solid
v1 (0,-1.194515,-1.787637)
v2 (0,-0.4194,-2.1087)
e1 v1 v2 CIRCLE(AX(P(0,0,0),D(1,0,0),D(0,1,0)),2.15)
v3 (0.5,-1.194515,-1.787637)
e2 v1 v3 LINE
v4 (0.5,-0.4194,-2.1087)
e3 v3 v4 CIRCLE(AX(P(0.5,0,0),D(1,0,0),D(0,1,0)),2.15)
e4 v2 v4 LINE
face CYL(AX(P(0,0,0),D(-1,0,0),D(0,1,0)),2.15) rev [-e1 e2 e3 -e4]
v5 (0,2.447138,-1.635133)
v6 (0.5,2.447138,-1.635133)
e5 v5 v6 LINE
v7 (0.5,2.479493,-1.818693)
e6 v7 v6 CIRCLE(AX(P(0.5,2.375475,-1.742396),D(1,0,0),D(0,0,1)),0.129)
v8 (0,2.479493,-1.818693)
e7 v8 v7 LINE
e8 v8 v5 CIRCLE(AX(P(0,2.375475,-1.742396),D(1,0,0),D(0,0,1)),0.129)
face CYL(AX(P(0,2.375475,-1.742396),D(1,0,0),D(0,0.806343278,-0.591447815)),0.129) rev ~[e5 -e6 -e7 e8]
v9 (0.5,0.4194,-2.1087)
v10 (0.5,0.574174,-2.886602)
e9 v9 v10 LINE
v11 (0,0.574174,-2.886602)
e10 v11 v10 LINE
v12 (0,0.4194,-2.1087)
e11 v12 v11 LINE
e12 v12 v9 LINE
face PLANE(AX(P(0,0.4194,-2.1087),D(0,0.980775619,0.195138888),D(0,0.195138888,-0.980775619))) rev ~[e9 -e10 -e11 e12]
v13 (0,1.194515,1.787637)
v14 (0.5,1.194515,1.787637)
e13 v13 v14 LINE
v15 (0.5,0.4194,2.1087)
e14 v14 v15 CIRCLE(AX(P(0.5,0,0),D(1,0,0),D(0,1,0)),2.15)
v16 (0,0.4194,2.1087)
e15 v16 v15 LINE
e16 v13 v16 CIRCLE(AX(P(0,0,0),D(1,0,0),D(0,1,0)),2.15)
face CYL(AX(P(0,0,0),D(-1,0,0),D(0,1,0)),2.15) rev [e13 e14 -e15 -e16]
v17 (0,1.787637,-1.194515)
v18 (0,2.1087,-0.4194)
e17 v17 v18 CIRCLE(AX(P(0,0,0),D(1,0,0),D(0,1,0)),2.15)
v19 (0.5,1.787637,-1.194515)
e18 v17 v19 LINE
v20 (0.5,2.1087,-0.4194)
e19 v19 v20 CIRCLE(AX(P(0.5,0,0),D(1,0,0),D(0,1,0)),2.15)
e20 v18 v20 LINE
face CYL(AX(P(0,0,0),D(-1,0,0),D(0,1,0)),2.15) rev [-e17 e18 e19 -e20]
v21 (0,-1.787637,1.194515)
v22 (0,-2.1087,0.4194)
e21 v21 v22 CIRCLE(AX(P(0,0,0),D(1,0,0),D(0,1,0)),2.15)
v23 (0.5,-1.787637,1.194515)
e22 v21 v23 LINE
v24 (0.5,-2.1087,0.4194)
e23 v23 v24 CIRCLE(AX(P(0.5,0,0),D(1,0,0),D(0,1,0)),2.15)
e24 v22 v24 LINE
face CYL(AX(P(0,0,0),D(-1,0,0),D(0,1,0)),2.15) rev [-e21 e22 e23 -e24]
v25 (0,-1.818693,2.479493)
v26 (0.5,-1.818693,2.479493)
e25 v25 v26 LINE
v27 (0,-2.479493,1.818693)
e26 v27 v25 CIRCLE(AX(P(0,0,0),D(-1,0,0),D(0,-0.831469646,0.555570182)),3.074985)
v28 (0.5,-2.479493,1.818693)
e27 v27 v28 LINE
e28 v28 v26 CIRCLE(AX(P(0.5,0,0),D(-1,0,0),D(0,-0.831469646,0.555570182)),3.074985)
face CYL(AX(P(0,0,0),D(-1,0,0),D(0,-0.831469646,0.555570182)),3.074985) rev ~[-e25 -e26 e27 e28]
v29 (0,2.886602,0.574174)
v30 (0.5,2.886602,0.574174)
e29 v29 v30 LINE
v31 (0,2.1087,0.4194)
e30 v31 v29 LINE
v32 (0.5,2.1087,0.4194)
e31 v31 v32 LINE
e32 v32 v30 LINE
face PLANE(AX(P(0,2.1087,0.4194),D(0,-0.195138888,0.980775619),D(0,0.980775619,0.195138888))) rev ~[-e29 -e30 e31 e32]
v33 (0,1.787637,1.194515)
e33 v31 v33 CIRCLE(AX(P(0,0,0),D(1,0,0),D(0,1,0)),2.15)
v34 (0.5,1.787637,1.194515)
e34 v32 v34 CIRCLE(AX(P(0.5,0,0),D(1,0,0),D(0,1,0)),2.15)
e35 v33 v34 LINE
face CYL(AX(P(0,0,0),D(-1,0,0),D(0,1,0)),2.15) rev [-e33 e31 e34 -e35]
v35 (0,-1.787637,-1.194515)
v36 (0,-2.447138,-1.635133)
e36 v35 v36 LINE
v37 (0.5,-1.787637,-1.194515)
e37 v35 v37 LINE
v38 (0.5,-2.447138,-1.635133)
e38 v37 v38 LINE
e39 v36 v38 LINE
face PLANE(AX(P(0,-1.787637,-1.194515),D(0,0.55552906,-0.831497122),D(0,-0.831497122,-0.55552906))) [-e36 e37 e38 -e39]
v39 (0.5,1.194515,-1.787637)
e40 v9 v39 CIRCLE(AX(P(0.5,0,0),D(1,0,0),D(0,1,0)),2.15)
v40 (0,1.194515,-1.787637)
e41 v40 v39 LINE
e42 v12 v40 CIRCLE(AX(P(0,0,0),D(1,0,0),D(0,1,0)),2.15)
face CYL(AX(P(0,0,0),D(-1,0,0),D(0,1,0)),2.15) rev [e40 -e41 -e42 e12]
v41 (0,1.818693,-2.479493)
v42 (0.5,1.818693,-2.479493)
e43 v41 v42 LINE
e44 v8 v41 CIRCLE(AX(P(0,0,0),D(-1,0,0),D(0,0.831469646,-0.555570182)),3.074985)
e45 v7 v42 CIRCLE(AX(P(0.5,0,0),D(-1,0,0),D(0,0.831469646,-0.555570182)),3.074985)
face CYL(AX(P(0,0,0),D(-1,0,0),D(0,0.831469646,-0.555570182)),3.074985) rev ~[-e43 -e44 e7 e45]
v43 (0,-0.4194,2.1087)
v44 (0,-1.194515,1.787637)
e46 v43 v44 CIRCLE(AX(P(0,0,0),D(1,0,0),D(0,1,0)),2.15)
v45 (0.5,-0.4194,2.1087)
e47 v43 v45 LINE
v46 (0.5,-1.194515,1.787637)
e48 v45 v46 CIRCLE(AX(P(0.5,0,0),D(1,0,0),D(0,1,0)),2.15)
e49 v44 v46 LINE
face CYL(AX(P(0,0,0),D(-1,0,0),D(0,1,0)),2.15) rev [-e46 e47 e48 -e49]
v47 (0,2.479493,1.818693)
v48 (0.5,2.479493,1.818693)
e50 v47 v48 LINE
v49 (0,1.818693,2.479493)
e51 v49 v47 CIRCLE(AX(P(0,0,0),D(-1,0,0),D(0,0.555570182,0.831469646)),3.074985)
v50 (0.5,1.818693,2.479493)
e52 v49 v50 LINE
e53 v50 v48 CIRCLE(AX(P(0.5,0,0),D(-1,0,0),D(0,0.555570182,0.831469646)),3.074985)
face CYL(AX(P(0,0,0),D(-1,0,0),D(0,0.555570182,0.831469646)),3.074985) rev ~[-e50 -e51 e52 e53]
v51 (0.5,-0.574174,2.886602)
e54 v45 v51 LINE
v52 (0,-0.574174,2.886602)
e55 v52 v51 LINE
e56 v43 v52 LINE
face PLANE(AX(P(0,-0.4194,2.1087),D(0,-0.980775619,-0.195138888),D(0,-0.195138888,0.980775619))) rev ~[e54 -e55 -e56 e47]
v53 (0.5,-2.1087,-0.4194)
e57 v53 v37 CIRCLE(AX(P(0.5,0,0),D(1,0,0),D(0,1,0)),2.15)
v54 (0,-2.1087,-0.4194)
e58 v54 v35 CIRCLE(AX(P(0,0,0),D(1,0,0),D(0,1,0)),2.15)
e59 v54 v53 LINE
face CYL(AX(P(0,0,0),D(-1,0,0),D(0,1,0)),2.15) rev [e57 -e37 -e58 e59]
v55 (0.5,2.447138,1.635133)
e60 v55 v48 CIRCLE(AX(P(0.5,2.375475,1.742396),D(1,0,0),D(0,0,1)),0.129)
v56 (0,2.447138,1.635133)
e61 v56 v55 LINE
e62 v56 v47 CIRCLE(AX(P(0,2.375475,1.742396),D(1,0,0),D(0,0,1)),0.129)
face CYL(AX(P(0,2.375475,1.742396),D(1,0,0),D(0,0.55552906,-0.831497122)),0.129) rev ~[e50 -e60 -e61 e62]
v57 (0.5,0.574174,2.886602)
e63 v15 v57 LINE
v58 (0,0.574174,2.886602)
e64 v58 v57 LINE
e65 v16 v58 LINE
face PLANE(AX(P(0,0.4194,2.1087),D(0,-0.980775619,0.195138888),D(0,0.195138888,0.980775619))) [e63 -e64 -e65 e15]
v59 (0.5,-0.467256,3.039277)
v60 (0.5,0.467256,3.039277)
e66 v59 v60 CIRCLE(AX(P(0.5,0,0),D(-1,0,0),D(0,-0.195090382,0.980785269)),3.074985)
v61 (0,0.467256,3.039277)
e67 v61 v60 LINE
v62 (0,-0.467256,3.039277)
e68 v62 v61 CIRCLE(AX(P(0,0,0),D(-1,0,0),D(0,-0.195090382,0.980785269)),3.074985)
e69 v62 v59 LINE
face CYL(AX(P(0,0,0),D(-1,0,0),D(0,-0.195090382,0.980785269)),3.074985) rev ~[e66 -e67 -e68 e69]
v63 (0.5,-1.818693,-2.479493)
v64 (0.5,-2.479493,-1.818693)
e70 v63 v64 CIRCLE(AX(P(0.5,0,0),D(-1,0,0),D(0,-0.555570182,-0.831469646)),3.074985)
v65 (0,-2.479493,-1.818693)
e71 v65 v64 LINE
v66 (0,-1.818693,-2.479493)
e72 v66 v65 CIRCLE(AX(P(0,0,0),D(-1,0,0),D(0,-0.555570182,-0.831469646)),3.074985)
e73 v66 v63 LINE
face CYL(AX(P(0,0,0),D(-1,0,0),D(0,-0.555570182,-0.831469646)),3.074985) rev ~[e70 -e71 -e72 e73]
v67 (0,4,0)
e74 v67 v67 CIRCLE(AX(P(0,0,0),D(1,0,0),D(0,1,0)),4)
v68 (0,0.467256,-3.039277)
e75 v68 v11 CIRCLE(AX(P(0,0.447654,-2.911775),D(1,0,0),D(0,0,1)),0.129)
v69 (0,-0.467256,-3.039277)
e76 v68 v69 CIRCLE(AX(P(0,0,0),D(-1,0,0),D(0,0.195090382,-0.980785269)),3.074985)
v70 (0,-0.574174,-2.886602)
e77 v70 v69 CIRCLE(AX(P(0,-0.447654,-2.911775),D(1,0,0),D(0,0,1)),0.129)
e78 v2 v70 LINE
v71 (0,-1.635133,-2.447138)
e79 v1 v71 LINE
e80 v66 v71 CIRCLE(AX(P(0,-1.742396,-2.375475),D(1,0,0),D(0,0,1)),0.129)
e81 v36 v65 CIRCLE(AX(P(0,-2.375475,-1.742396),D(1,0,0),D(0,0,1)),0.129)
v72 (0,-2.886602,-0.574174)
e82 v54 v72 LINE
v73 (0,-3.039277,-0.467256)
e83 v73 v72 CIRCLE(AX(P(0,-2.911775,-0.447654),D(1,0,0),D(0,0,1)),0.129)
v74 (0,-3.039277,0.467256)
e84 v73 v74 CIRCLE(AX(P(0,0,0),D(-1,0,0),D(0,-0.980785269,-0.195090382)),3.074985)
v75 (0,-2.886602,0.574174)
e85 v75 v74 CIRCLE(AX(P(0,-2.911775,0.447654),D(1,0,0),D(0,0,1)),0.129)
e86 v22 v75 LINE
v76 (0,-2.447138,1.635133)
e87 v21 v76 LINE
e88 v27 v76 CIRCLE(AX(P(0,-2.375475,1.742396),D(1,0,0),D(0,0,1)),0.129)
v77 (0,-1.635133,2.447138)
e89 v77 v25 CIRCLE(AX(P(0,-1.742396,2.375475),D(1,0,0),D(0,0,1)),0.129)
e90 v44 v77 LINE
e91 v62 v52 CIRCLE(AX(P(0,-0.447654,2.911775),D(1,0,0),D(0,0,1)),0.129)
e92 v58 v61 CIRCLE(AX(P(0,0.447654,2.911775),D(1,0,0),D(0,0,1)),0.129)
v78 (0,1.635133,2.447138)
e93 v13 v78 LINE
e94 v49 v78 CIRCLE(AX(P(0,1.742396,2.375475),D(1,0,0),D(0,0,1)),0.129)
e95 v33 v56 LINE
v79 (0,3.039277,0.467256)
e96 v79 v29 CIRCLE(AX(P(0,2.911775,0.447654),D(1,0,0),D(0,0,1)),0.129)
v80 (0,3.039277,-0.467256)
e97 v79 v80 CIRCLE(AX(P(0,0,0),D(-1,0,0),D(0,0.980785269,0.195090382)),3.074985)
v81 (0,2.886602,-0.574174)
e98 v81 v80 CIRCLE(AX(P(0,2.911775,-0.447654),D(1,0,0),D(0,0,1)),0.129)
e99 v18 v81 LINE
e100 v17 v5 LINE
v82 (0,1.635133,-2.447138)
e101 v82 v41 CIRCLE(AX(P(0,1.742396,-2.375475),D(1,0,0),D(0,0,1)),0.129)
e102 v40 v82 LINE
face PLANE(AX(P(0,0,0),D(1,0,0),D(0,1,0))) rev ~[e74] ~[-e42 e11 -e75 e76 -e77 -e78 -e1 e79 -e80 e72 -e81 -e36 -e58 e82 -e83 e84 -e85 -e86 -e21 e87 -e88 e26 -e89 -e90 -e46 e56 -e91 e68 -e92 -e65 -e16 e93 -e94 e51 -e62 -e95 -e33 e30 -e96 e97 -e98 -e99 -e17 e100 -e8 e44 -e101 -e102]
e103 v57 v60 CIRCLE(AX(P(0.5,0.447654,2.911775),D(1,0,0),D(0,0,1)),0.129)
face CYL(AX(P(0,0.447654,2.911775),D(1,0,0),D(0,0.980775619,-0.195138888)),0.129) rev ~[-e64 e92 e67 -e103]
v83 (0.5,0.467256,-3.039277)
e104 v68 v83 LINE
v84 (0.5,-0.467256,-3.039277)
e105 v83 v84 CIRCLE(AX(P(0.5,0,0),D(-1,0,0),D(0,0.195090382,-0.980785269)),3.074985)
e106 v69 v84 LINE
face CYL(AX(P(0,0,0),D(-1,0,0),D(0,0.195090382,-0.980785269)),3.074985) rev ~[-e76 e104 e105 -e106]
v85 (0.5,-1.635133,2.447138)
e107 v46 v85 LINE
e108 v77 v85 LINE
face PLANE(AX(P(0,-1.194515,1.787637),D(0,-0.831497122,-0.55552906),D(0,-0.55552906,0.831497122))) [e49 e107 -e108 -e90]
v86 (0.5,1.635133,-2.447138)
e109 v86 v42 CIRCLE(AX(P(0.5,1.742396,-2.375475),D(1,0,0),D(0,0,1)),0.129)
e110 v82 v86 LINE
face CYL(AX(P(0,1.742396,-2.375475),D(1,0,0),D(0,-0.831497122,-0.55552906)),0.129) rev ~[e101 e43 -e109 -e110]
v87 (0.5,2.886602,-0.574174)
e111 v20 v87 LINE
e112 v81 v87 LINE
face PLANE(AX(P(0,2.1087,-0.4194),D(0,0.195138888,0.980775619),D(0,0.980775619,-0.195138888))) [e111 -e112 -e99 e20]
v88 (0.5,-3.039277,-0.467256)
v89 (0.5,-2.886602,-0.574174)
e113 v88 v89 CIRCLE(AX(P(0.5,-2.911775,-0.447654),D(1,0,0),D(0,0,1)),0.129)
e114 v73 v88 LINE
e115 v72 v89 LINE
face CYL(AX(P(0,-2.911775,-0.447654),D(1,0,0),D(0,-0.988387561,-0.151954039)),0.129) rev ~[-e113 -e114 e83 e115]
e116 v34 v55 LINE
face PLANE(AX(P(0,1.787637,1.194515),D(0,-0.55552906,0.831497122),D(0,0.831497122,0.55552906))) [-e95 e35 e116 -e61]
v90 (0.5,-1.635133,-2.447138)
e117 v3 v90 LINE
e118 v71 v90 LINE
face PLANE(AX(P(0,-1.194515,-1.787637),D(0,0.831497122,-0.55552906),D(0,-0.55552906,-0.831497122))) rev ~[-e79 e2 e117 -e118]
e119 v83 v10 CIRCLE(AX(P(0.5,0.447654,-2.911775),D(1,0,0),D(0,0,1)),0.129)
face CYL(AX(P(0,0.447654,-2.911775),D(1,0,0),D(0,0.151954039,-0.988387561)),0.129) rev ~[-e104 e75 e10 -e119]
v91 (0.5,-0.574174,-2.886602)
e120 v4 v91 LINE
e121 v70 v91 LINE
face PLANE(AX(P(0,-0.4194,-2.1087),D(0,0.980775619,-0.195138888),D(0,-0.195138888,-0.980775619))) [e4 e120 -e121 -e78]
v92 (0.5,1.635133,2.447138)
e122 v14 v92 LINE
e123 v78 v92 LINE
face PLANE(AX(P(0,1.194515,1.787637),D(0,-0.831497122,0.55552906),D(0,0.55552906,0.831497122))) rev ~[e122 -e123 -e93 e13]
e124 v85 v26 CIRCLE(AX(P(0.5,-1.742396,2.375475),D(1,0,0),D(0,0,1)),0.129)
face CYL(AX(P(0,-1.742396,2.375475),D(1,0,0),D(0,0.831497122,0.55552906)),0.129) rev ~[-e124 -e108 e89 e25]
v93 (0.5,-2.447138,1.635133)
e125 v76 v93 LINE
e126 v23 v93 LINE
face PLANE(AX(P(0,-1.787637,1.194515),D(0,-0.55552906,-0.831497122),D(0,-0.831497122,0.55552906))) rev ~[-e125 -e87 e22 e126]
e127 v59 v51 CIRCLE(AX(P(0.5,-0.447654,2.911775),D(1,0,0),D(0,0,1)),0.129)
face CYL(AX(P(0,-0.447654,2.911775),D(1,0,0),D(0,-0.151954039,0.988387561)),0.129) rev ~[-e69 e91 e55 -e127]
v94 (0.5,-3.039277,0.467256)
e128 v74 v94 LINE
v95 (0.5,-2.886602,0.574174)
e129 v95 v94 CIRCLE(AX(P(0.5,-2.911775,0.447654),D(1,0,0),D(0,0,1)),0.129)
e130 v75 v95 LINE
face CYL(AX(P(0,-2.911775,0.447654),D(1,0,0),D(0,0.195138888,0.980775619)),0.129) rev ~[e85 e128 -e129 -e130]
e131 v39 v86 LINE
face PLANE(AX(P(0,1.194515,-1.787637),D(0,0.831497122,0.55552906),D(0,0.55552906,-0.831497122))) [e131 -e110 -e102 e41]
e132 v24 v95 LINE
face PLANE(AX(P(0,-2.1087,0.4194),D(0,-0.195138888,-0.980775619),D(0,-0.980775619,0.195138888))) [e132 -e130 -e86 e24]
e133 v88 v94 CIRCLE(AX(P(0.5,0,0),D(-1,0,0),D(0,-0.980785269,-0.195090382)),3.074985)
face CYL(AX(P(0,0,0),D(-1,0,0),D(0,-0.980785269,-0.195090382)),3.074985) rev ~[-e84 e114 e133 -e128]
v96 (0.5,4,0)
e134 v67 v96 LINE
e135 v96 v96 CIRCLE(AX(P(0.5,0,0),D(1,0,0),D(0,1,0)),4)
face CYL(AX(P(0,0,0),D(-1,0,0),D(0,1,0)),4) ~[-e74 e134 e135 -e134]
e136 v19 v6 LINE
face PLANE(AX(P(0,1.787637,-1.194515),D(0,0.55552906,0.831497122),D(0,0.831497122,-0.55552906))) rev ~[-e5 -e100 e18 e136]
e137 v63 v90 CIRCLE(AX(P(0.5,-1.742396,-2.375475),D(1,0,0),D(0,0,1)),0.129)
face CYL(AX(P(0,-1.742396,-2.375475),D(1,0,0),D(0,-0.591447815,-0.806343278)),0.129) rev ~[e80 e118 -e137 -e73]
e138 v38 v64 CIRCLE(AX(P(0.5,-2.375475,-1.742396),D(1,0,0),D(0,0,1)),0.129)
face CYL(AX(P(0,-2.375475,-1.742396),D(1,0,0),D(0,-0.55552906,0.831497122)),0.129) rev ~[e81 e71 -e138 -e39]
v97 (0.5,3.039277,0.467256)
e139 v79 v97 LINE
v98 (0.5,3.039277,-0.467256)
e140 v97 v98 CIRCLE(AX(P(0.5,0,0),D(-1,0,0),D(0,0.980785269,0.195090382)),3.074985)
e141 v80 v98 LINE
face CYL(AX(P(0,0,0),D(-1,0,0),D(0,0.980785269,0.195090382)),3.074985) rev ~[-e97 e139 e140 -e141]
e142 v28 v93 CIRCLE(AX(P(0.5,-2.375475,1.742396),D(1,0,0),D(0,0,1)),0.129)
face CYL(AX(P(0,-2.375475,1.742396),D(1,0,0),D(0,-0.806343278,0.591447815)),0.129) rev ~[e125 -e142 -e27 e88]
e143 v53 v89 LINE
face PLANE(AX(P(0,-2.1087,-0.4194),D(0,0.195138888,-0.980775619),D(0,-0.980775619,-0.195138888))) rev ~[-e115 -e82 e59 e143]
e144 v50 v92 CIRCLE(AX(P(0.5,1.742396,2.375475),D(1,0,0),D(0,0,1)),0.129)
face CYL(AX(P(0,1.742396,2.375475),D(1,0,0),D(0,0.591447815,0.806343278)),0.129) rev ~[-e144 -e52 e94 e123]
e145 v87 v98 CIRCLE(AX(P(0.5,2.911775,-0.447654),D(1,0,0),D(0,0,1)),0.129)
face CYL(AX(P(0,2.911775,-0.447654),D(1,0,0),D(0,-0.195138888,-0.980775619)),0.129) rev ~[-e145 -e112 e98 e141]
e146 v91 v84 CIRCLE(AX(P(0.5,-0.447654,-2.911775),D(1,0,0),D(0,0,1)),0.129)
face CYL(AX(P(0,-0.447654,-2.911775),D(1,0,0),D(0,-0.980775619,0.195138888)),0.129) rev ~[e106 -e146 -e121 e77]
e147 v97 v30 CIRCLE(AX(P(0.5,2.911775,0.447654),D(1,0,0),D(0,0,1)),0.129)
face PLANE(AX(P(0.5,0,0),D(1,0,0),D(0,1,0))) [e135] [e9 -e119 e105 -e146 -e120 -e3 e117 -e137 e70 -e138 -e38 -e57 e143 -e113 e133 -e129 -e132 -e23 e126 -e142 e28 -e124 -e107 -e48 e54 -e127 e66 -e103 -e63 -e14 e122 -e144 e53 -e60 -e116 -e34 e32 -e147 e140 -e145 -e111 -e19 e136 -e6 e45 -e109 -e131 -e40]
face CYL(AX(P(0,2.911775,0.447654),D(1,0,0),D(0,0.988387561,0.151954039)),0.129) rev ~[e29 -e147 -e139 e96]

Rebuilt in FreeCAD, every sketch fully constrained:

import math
import FreeCAD as App
import Part
import Sketcher
from FreeCAD import Vector


def edges_at(feature, points):
    """Names of the edges that pass closest to the given points."""
    edges = feature.Shape.Edges
    near = lambda p: min(range(len(edges)), key=lambda i: edges[i].distToShape(Part.Vertex(*p))[0])
    return sorted({f"Edge{near(p) + 1}" for p in points})

doc = App.newDocument("Part")
body = doc.addObject("PartDesign::Body", "Body")

# Sketch on YZ plane
sketch1 = doc.addObject("Sketcher::SketchObject", "Sketch")
body.addObject(sketch1)
sketch1.AttachmentSupport = (doc.YZ_Plane, [""])
sketch1.MapMode = "FlatFace"
sketch1.addGeometry([
    Part.Circle(Vector(0, 0, 0), Vector(0, 0, 1), 4),
    Part.Circle(Vector(0, 0, 0), Vector(0, 0, 1), 2.1),
], False)
sketch1.addConstraint([
    Sketcher.Constraint("Coincident", 0, 3, -1, 1),
    Sketcher.Constraint("Coincident", 1, 3, -1, 1),
    Sketcher.Constraint("Diameter", 0, 8.0),
    Sketcher.Constraint("Diameter", 1, 4.3),
])
pad1 = doc.addObject("PartDesign::Pad", "Pad")
body.addObject(pad1)
pad1.Profile = sketch1
pad1.Length = 0.5

# Sketch on YZ plane
sketch2 = doc.addObject("Sketcher::SketchObject", "Sketch001")
body.addObject(sketch2)
sketch2.AttachmentSupport = (doc.YZ_Plane, [""])
sketch2.MapMode = "FlatFace"
sketch2.addGeometry([
    Part.ArcOfCircle(Part.Circle(Vector(0, 0, 0), Vector(0, 0, 1), 2.1), math.radians(-11), math.radians(11)),
    Part.LineSegment(Vector(2.1, 0.4, 0), Vector(3, 0.6, 0)),
    Part.ArcOfCircle(Part.Circle(Vector(0, 0, 0), Vector(0, 0, 1), 3.1), math.radians(-11), math.radians(11)),
    Part.LineSegment(Vector(3, -0.6, 0), Vector(2.1, -0.4, 0)),
], False)
sketch2.addConstraint([
    Sketcher.Constraint("Coincident", 0, 2, 1, 1),
    Sketcher.Constraint("Coincident", 1, 2, 2, 2),
    Sketcher.Constraint("Coincident", 2, 1, 3, 1),
    Sketcher.Constraint("Coincident", 3, 2, 0, 1),
    Sketcher.Constraint("Coincident", 0, 3, -1, 1),
    Sketcher.Constraint("Coincident", 2, 3, -1, 1),
    Sketcher.Constraint("Vertical", 1, 2, 2, 1),
    Sketcher.Constraint("Vertical", 0, 2, 3, 2),
    Sketcher.Constraint("Radius", 2, 3.075),
    Sketcher.Constraint("Radius", 0, 2.15),
    Sketcher.Constraint("DistanceY", -1, 1, 1, 2, 0.6),
    Sketcher.Constraint("DistanceX", -1, 1, 0, 2, 2.1087),
])
pocket1 = doc.addObject("PartDesign::Pocket", "Pocket")
body.addObject(pocket1)
pocket1.Profile = sketch2
pocket1.Length = 0.5
pocket1.Reversed = True
doc.recompute()

fillet = doc.addObject("PartDesign::Fillet", "Fillet")
body.addObject(fillet)
fillet.Base = (pocket1, edges_at(pocket1, [(0.25, 3.016, 0.6), (0.25, 3.016, -0.6)]))
fillet.Radius = 0.129
doc.recompute()

polarpattern = doc.addObject("PartDesign::PolarPattern", "PolarPattern")
body.addObject(polarpattern)
polarpattern.Originals = [pocket1, fillet]
polarpattern.Axis = (doc.X_Axis, [""])
polarpattern.Angle = 360
polarpattern.Occurrences = 8
body.Tip = polarpattern

doc.recompute()
